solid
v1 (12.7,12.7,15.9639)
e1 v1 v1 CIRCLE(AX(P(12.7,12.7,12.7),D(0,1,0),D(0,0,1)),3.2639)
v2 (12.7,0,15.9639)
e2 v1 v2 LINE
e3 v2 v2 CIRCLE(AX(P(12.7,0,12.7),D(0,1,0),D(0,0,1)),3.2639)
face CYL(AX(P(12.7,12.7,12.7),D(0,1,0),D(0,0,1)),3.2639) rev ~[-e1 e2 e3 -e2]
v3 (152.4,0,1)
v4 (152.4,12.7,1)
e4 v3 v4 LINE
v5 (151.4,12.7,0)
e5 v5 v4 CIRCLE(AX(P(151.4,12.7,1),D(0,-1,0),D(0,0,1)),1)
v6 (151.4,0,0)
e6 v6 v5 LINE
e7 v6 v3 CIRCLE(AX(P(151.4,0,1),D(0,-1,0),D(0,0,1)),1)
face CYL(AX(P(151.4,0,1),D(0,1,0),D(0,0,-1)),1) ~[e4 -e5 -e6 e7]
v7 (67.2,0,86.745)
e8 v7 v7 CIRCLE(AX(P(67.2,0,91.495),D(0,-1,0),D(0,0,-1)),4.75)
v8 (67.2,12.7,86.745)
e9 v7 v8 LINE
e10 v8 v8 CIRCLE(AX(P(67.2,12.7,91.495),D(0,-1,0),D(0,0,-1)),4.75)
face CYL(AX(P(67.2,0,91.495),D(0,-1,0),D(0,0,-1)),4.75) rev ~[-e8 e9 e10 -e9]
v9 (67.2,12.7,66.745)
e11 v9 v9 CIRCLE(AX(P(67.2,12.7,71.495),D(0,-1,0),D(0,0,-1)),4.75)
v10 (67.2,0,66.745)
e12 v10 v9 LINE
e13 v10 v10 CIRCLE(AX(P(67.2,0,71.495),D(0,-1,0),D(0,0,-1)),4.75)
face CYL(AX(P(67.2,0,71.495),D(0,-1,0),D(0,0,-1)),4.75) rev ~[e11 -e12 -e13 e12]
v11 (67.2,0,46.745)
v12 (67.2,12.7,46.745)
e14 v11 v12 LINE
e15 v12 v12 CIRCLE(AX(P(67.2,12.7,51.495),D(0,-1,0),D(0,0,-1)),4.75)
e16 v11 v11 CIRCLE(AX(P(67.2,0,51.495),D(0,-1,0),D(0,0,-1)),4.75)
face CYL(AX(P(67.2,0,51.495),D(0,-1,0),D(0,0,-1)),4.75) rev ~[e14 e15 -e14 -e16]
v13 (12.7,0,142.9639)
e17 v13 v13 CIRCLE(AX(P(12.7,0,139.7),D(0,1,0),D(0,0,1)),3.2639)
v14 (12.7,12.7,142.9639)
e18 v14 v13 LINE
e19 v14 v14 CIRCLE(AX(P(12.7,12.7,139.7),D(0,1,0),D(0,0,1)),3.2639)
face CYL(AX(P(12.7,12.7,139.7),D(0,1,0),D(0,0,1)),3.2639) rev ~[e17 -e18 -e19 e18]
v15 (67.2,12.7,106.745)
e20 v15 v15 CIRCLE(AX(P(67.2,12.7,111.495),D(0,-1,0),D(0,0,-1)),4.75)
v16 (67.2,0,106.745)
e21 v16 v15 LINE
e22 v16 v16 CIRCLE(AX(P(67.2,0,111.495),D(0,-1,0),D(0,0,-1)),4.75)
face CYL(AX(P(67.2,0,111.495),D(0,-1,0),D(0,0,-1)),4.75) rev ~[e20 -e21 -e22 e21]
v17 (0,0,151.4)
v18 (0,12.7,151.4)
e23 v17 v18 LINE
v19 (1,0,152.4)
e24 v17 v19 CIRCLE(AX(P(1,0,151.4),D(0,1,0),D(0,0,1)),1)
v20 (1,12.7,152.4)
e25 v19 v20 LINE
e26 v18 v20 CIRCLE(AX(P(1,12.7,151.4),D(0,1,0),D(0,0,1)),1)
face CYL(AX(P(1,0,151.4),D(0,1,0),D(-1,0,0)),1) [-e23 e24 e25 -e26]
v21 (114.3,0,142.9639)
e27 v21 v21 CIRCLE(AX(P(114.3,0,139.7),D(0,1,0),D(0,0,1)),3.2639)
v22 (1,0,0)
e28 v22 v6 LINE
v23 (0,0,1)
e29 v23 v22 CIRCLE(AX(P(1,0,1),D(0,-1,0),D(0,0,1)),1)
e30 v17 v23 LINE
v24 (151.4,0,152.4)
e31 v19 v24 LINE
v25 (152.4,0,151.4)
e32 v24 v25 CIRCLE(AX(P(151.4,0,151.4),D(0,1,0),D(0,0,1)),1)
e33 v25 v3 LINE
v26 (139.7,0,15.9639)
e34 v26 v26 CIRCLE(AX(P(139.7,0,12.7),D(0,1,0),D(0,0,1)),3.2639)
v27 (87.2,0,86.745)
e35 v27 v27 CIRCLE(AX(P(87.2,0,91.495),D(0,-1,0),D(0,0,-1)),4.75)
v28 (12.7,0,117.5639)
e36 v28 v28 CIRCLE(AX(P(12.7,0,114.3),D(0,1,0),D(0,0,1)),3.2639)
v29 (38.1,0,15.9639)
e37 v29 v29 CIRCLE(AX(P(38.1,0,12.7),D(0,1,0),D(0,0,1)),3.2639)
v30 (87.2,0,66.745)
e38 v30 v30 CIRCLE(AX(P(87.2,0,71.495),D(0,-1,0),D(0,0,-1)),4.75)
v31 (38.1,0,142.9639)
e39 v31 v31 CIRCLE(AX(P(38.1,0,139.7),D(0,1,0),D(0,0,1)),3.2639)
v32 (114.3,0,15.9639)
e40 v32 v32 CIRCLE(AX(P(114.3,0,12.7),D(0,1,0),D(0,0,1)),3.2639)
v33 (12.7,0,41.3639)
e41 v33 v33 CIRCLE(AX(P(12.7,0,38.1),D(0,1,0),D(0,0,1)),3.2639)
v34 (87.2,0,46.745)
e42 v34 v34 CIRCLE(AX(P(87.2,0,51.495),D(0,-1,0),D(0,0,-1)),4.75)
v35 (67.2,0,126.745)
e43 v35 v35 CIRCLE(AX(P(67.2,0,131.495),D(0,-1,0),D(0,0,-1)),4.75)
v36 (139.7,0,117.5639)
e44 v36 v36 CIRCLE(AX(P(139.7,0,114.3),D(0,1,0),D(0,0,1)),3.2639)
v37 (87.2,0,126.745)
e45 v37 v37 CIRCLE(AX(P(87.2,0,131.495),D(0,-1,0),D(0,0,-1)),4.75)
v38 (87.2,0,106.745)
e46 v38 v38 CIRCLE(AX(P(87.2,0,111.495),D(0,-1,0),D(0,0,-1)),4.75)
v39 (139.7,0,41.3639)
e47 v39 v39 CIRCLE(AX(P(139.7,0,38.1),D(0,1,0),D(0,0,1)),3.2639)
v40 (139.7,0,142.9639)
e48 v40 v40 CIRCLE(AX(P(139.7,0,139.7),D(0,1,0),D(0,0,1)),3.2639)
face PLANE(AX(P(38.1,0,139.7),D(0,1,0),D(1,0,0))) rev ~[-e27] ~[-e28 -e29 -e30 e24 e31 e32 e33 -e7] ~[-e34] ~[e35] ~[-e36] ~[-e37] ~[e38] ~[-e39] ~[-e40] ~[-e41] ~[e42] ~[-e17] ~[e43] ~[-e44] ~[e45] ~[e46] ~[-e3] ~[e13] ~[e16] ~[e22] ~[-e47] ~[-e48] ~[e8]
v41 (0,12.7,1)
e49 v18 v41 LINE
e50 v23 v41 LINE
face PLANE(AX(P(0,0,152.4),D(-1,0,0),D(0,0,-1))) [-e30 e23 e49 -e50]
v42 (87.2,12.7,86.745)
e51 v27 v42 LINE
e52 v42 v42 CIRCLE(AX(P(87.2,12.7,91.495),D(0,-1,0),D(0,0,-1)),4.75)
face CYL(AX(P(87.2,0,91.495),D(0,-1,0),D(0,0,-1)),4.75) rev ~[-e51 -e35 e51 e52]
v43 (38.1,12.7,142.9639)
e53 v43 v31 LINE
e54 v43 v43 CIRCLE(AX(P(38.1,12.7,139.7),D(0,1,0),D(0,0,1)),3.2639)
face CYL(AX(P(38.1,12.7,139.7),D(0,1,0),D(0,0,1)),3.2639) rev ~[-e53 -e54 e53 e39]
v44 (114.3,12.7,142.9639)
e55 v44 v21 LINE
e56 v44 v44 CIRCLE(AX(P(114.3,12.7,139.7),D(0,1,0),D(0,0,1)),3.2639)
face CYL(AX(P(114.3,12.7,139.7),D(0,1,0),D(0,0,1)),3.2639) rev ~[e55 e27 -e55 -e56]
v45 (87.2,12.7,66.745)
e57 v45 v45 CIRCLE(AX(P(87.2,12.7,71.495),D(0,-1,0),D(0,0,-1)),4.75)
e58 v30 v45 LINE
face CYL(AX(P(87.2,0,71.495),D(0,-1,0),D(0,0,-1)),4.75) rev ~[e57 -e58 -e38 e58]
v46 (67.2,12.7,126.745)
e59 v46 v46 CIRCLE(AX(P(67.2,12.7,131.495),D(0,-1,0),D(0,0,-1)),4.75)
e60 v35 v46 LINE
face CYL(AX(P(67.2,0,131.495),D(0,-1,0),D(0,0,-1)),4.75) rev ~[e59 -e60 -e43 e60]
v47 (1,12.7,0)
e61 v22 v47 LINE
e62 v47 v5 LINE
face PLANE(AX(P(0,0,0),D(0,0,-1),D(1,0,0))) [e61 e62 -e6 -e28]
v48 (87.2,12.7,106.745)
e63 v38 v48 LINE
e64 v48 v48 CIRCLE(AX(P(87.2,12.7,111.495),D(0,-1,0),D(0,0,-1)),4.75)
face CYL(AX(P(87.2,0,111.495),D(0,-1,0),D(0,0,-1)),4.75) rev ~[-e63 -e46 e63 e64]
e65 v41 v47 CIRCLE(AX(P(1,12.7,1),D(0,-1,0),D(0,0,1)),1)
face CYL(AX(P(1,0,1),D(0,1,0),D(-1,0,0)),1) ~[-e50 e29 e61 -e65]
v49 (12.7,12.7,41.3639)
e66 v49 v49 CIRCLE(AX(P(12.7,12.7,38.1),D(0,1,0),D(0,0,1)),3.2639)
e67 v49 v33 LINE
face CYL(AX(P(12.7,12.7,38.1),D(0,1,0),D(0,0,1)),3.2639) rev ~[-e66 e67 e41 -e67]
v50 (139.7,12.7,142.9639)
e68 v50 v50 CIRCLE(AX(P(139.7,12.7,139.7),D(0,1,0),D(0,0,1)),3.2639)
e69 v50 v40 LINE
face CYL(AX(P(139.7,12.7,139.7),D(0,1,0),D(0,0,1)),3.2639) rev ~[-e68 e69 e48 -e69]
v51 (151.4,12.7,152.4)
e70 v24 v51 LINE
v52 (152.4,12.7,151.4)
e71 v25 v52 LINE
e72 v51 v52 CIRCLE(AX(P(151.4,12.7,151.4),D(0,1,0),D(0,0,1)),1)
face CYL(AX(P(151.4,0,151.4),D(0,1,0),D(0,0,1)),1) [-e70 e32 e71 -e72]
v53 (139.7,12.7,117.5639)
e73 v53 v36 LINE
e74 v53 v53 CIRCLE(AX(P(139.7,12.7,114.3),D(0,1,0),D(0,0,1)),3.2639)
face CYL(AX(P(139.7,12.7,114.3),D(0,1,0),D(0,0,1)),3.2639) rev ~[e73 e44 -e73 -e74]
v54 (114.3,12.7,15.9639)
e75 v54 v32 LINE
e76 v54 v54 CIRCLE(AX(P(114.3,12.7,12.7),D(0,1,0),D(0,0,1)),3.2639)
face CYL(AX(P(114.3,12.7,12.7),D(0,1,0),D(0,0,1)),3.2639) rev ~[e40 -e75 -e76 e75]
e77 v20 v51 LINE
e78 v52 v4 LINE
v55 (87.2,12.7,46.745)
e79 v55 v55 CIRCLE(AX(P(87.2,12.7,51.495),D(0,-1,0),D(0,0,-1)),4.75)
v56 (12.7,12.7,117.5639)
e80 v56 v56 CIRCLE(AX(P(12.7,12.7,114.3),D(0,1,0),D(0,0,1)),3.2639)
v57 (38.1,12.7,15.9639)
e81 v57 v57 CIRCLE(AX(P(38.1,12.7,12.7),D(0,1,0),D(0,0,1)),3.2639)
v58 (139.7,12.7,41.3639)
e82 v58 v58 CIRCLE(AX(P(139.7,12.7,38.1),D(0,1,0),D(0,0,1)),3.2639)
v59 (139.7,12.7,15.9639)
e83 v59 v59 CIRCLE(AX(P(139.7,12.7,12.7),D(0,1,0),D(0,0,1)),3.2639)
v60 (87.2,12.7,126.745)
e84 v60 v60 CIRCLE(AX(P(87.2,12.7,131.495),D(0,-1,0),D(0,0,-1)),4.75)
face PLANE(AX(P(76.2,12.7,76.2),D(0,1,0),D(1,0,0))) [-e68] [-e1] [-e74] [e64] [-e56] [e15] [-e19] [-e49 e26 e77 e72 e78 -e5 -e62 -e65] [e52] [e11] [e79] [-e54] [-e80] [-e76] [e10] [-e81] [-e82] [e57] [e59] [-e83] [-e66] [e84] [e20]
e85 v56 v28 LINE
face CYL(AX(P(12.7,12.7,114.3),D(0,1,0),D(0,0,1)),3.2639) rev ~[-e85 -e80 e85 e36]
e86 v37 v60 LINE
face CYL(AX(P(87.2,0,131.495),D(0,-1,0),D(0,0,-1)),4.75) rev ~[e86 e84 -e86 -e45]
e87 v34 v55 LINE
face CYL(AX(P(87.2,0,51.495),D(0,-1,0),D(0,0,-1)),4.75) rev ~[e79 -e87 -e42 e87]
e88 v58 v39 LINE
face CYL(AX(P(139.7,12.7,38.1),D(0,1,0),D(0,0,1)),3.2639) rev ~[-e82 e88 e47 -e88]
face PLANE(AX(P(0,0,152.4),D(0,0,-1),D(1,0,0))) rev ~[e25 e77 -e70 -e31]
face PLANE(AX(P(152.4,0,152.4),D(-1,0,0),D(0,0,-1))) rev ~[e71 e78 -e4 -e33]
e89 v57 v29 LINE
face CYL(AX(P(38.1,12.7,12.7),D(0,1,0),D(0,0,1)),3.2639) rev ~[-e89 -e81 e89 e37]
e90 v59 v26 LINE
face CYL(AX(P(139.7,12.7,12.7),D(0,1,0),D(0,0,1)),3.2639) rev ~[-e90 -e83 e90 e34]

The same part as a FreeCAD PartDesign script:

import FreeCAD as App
import Part
import Sketcher
from FreeCAD import Vector
Q = App.Units.Quantity


def edges_at(feature, points):
    """Names of the edges that pass closest to the given points."""
    edges = feature.Shape.Edges
    near = lambda p: min(range(len(edges)), key=lambda i: edges[i].distToShape(Part.Vertex(*p))[0])
    return sorted({f"Edge{near(p) + 1}" for p in points})

doc = App.newDocument("Part")
params = doc.addObject("Spreadsheet::Sheet", "Params")
for row, (alias, value) in enumerate([
    ("sketch1_width", "6 in"),
    ("pad1_length", "0.5 in"),
    ("fillet_radius", "1 mm"),
    ("sketch2_diameter", "0.257 in"),
    ("pocket1_length", "0.5 in"),
    ("pocket2_length", "0.5 in"),
], start=1):
    params.set(f"A{row}", alias)
    params.set(f"B{row}", "=" + value)
    params.setAlias(f"B{row}", alias)

body = doc.addObject("PartDesign::Body", "Body")

# Sketch on XZ plane
sketch1 = body.newObject("Sketcher::SketchObject", "Sketch")
sketch1.AttachmentSupport = (doc.getObject("XZ_Plane"), [""])
sketch1.MapMode = "FlatFace"
sketch1.addGeometry([
    Part.LineSegment(Vector(0, 0, 0), Vector(0, 152, 0)),
    Part.LineSegment(Vector(0, 152, 0), Vector(152, 152, 0)),
    Part.LineSegment(Vector(152, 152, 0), Vector(152, 0, 0)),
    Part.LineSegment(Vector(152, 0, 0), Vector(0, 0, 0)),
], False)
sketch1.addConstraint([
    Sketcher.Constraint("Coincident", 0, 2, 1, 1),
    Sketcher.Constraint("Coincident", 1, 2, 2, 1),
    Sketcher.Constraint("Coincident", 2, 2, 3, 1),
    Sketcher.Constraint("Coincident", 3, 2, 0, 1),
    Sketcher.Constraint("Vertical", 0),
    Sketcher.Constraint("Horizontal", 1),
    Sketcher.Constraint("Vertical", 2),
    Sketcher.Constraint("Horizontal", 3),
    Sketcher.Constraint("Coincident", 3, 2, -1, 1),
    Sketcher.Constraint("Equal", 3, 0),
    Sketcher.Constraint("DistanceX", 1, 1, 1, 2, Q("6 in")),
])
sketch1.setExpression("Constraints[10]", "Params.sketch1_width")
pad1 = body.newObject("PartDesign::Pad", "Pad")
pad1.Profile = sketch1
pad1.setExpression("Length", "Params.pad1_length")
pad1.Reversed = True
doc.recompute()

fillet = body.newObject("PartDesign::Fillet", "Fillet")
fillet.Base = (pad1, edges_at(pad1, [
    (152.4, 6.35, 152.4),
    (0, 6.35, 152.4),
    (0, 6.35, 0),
    (152.4, 6.35, 0),
]))
fillet.setExpression("Radius", "Params.fillet_radius")

# Sketch on XZ plane
sketch2 = body.newObject("Sketcher::SketchObject", "Sketch001")
sketch2.AttachmentSupport = (doc.getObject("XZ_Plane"), [""])
sketch2.MapMode = "FlatFace"
sketch2.AttachmentOffset = App.Placement(Vector(0, 0, -0.5 * 25.4), App.Rotation())
sketch2.addGeometry([
    Part.Circle(Vector(38.1, 12.7, 0), Vector(0, 0, 1), 3.3),  # 0
    Part.Circle(Vector(12.7, 12.7, 0), Vector(0, 0, 1), 3.3),  # 1
    Part.Circle(Vector(139.7, 12.7, 0), Vector(0, 0, 1), 3.3),  # 2
    Part.Circle(Vector(12.7, 38.1, 0), Vector(0, 0, 1), 3.3),  # 3
    Part.Circle(Vector(114.3, 12.7, 0), Vector(0, 0, 1), 3.3),  # 4
    Part.Circle(Vector(139.7, 38.1, 0), Vector(0, 0, 1), 3.3),  # 5
    Part.Circle(Vector(139.7, 114.3, 0), Vector(0, 0, 1), 3.3),  # 6
    Part.Circle(Vector(114.3, 139.7, 0), Vector(0, 0, 1), 3.3),  # 7
    Part.Circle(Vector(12.7, 114.3, 0), Vector(0, 0, 1), 3.3),  # 8
    Part.Circle(Vector(38.1, 139.7, 0), Vector(0, 0, 1), 3.3),  # 9
    Part.Circle(Vector(139.7, 139.7, 0), Vector(0, 0, 1), 3.3),  # 10
    Part.Circle(Vector(12.7, 139.7, 0), Vector(0, 0, 1), 3.3),  # 11
], False)
sketch2.addConstraint([
    Sketcher.Constraint("Equal", 0, 1),
    Sketcher.Constraint("Equal", 1, 2),
    Sketcher.Constraint("Equal", 2, 3),
    Sketcher.Constraint("Equal", 3, 4),
    Sketcher.Constraint("Equal", 4, 5),
    Sketcher.Constraint("Equal", 5, 6),
    Sketcher.Constraint("Equal", 6, 7),
    Sketcher.Constraint("Equal", 7, 8),
    Sketcher.Constraint("Equal", 8, 9),
    Sketcher.Constraint("Equal", 9, 10),
    Sketcher.Constraint("Equal", 10, 11),
    Sketcher.Constraint("Horizontal", 0, 3, 1, 3),
    Sketcher.Constraint("Horizontal", 1, 3, 2, 3),
    Sketcher.Constraint("Horizontal", 2, 3, 4, 3),
    Sketcher.Constraint("Horizontal", 3, 3, 5, 3),
    Sketcher.Constraint("Horizontal", 6, 3, 8, 3),
    Sketcher.Constraint("Horizontal", 7, 3, 9, 3),
    Sketcher.Constraint("Horizontal", 9, 3, 10, 3),
    Sketcher.Constraint("Horizontal", 10, 3, 11, 3),
    Sketcher.Constraint("Vertical", 1, 3, 3, 3),
    Sketcher.Constraint("Vertical", 2, 3, 5, 3),
    Sketcher.Constraint("Vertical", 5, 3, 6, 3),
    Sketcher.Constraint("Vertical", 4, 3, 7, 3),
    Sketcher.Constraint("Vertical", 3, 3, 8, 3),
    Sketcher.Constraint("Vertical", 0, 3, 9, 3),
    Sketcher.Constraint("Vertical", 6, 3, 10, 3),
    Sketcher.Constraint("Vertical", 8, 3, 11, 3),
    Sketcher.Constraint("Diameter", 0, Q("0.257 in")),
    Sketcher.Constraint("DistanceX", 1, 3, 0, 3, Q("1 in")),
    Sketcher.Constraint("DistanceX", 0, 3, 2, 3, Q("4 in")),
    Sketcher.Constraint("DistanceY", 1, 3, 3, 3, Q("1 in")),
    Sketcher.Constraint("DistanceX", 4, 3, 2, 3, Q("1 in")),
    Sketcher.Constraint("DistanceY", 5, 3, 6, 3, Q("3 in")),
    Sketcher.Constraint("DistanceY", 6, 3, 7, 3, Q("1 in")),
    Sketcher.Constraint("DistanceX", -1, 1, 0, 3, Q("1.5 in")),
    Sketcher.Constraint("DistanceY", -1, 1, 0, 3, Q("0.5 in")),
])
sketch2.setExpression("Constraints[27]", "Params.sketch2_diameter")
pocket1 = body.newObject("PartDesign::Pocket", "Pocket")
pocket1.Profile = sketch2
pocket1.setExpression("Length", "Params.pocket1_length")
pocket1.Reversed = True

# Sketch on XZ plane
sketch3 = body.newObject("Sketcher::SketchObject", "Sketch002")
sketch3.AttachmentSupport = (doc.getObject("XZ_Plane"), [""])
sketch3.MapMode = "FlatFace"
sketch3.addGeometry([
    Part.Circle(Vector(67.2, 131.5, 0), Vector(0, 0, 1), 4.8),  # 0
    Part.Circle(Vector(87.2, 131.5, 0), Vector(0, 0, 1), 4.8),  # 1
    Part.Circle(Vector(87.2, 111.5, 0), Vector(0, 0, 1), 4.8),  # 2
    Part.Circle(Vector(67.2, 111.5, 0), Vector(0, 0, 1), 4.8),  # 3
    Part.Circle(Vector(67.2, 91.5, 0), Vector(0, 0, 1), 4.8),  # 4
    Part.Circle(Vector(67.2, 71.5, 0), Vector(0, 0, 1), 4.8),  # 5
    Part.Circle(Vector(67.2, 51.5, 0), Vector(0, 0, 1), 4.8),  # 6
    Part.Circle(Vector(87.2, 51.5, 0), Vector(0, 0, 1), 4.8),  # 7
    Part.Circle(Vector(87.2, 71.5, 0), Vector(0, 0, 1), 4.8),  # 8
    Part.Circle(Vector(87.2, 91.5, 0), Vector(0, 0, 1), 4.8),  # 9
], False)
sketch3.addConstraint([
    Sketcher.Constraint("Equal", 0, 1),
    Sketcher.Constraint("Equal", 1, 2),
    Sketcher.Constraint("Equal", 2, 3),
    Sketcher.Constraint("Equal", 3, 4),
    Sketcher.Constraint("Equal", 4, 5),
    Sketcher.Constraint("Equal", 5, 6),
    Sketcher.Constraint("Equal", 6, 7),
    Sketcher.Constraint("Equal", 7, 8),
    Sketcher.Constraint("Equal", 8, 9),
    Sketcher.Constraint("Horizontal", 0, 3, 1, 3),
    Sketcher.Constraint("Horizontal", 2, 3, 3, 3),
    Sketcher.Constraint("Horizontal", 6, 3, 7, 3),
    Sketcher.Constraint("Horizontal", 5, 3, 8, 3),
    Sketcher.Constraint("Horizontal", 4, 3, 9, 3),
    Sketcher.Constraint("Vertical", 1, 3, 2, 3),
    Sketcher.Constraint("Vertical", 0, 3, 3, 3),
    Sketcher.Constraint("Vertical", 3, 3, 4, 3),
    Sketcher.Constraint("Vertical", 4, 3, 5, 3),
    Sketcher.Constraint("Vertical", 5, 3, 6, 3),
    Sketcher.Constraint("Vertical", 2, 3, 7, 3),
    Sketcher.Constraint("Vertical", 7, 3, 8, 3),
    Sketcher.Constraint("Vertical", 8, 3, 9, 3),
    Sketcher.Constraint("Diameter", 0, Q("9.5 mm")),
    Sketcher.Constraint("DistanceX", -1, 1, 0, 3, Q("67.2 mm")),
    Sketcher.Constraint("DistanceY", -1, 1, 0, 3, Q("131.495 mm")),
    Sketcher.Constraint("DistanceX", -1, 1, 1, 3, Q("87.2 mm")),
    Sketcher.Constraint("DistanceY", -1, 1, 2, 3, Q("111.495 mm")),
    Sketcher.Constraint("DistanceY", -1, 1, 4, 3, Q("91.495 mm")),
    Sketcher.Constraint("DistanceY", -1, 1, 5, 3, Q("71.495 mm")),
    Sketcher.Constraint("DistanceY", -1, 1, 6, 3, Q("51.495 mm")),
])
pocket2 = body.newObject("PartDesign::Pocket", "Pocket001")
pocket2.Profile = sketch3
pocket2.setExpression("Length", "Params.pocket2_length")

doc.recompute()
